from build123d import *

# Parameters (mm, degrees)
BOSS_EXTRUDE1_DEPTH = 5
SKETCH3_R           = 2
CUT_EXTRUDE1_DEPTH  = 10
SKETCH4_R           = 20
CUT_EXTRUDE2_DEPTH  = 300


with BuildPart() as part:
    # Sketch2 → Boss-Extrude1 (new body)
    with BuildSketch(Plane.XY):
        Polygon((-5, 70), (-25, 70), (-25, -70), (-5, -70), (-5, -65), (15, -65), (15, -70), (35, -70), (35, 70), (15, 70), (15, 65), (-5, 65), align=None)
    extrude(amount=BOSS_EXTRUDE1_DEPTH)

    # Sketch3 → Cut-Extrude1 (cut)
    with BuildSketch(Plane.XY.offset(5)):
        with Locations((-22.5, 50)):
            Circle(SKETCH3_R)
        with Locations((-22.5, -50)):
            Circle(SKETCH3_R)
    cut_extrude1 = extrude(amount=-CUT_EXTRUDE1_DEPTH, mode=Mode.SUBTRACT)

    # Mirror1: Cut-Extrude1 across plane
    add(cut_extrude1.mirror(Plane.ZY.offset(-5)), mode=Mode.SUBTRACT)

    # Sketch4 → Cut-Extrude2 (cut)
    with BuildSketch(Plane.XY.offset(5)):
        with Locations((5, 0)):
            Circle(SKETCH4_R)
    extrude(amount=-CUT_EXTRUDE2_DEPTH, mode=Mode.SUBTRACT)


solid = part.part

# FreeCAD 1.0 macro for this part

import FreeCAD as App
import Part
import Sketcher
from FreeCAD import Vector
Q = App.Units.Quantity

doc = App.newDocument("Part")
body = doc.addObject("PartDesign::Body", "Body")

# Sketch on XY plane
sketch1 = body.newObject("Sketcher::SketchObject", "Sketch")
sketch1.AttachmentSupport = (doc.getObject("XY_Plane"), [""])
sketch1.MapMode = "FlatFace"
sketch1.addGeometry([
    Part.LineSegment(Vector(-5, 70, 0), Vector(-25, 70, 0)),  # 0
    Part.LineSegment(Vector(-25, 70, 0), Vector(-25, -70, 0)),  # 1
    Part.LineSegment(Vector(-25, -70, 0), Vector(-5, -70, 0)),  # 2
    Part.LineSegment(Vector(-5, -70, 0), Vector(-5, -65, 0)),  # 3
    Part.LineSegment(Vector(-5, -65, 0), Vector(15, -65, 0)),  # 4
    Part.LineSegment(Vector(15, -65, 0), Vector(15, -70, 0)),  # 5
    Part.LineSegment(Vector(15, -70, 0), Vector(35, -70, 0)),  # 6
    Part.LineSegment(Vector(35, -70, 0), Vector(35, 70, 0)),  # 7
    Part.LineSegment(Vector(35, 70, 0), Vector(15, 70, 0)),  # 8
    Part.LineSegment(Vector(15, 70, 0), Vector(15, 65, 0)),  # 9
    Part.LineSegment(Vector(15, 65, 0), Vector(-5, 65, 0)),  # 10
    Part.LineSegment(Vector(-5, 65, 0), Vector(-5, 70, 0)),  # 11
], False)
sketch1.addConstraint([
    Sketcher.Constraint("Coincident", 0, 2, 1, 1),
    Sketcher.Constraint("Coincident", 1, 2, 2, 1),
    Sketcher.Constraint("Coincident", 2, 2, 3, 1),
    Sketcher.Constraint("Coincident", 3, 2, 4, 1),
    Sketcher.Constraint("Coincident", 4, 2, 5, 1),
    Sketcher.Constraint("Coincident", 5, 2, 6, 1),
    Sketcher.Constraint("Coincident", 6, 2, 7, 1),
    Sketcher.Constraint("Coincident", 7, 2, 8, 1),
    Sketcher.Constraint("Coincident", 8, 2, 9, 1),
    Sketcher.Constraint("Coincident", 9, 2, 10, 1),
    Sketcher.Constraint("Coincident", 10, 2, 11, 1),
    Sketcher.Constraint("Coincident", 11, 2, 0, 1),
    Sketcher.Constraint("Horizontal", 0),
    Sketcher.Constraint("Vertical", 1),
    Sketcher.Constraint("Horizontal", 2),
    Sketcher.Constraint("Vertical", 3),
    Sketcher.Constraint("Horizontal", 4),
    Sketcher.Constraint("Vertical", 5),
    Sketcher.Constraint("Horizontal", 6),
    Sketcher.Constraint("Vertical", 7),
    Sketcher.Constraint("Horizontal", 8),
    Sketcher.Constraint("Vertical", 9),
    Sketcher.Constraint("Horizontal", 10),
    Sketcher.Constraint("Vertical", 11),
    Sketcher.Constraint("Symmetric", 5, 2, 8, 2, -1),
    Sketcher.Constraint("Symmetric", 3, 2, 10, 2, -1),
    Sketcher.Constraint("Horizontal", 2, 2, 5, 2),
    Sketcher.Constraint("Horizontal", 0, 2, 7, 2),
    Sketcher.Constraint("Equal", 2, 4),
    Sketcher.Constraint("Equal", 4, 6),
    Sketcher.Constraint("DistanceX", 0, 2, 0, 1, Q("20 mm")),
    Sketcher.Constraint("DistanceY", 1, 2, 1, 1, Q("140 mm")),
    Sketcher.Constraint("DistanceY", 3, 1, 3, 2, Q("5 mm")),
    Sketcher.Constraint("DistanceX", 0, 2, -1, 1, Q("25 mm")),
])
pad1 = body.newObject("PartDesign::Pad", "Pad")
pad1.Profile = sketch1
pad1.Length = 5

# Sketch on XY plane
sketch2 = body.newObject("Sketcher::SketchObject", "Sketch001")
sketch2.AttachmentSupport = (doc.getObject("XY_Plane"), [""])
sketch2.MapMode = "FlatFace"
sketch2.AttachmentOffset = App.Placement(Vector(0, 0, 5), App.Rotation())
sketch2.addGeometry([
    Part.Circle(Vector(-22.5, 50, 0), Vector(0, 0, 1), 2),
    Part.Circle(Vector(-22.5, -50, 0), Vector(0, 0, 1), 2),
], False)
sketch2.addConstraint([
    Sketcher.Constraint("Equal", 0, 1),
    Sketcher.Constraint("Symmetric", 0, 3, 1, 3, -1),
    Sketcher.Constraint("Diameter", 0, Q("4 mm")),
    Sketcher.Constraint("DistanceY", -1, 1, 0, 3, Q("50 mm")),
    Sketcher.Constraint("DistanceX", 0, 3, -1, 1, Q("22.5 mm")),
])
pocket1 = body.newObject("PartDesign::Pocket", "Pocket")
pocket1.Profile = sketch2
pocket1.Length = 10
doc.recompute()

datumplane = body.newObject("PartDesign::Plane", "DatumPlane")
datumplane.AttachmentSupport = (doc.getObject("YZ_Plane"), [""])
datumplane.MapMode = "FlatFace"
datumplane.AttachmentOffset = App.Placement(Vector(0, 0, 5), App.Rotation())
mirrored = body.newObject("PartDesign::Mirrored", "Mirrored")
mirrored.Originals = [pocket1]
mirrored.MirrorPlane = (datumplane, [""])
body.Tip = mirrored

# Sketch on XY plane
sketch3 = body.newObject("Sketcher::SketchObject", "Sketch002")
sketch3.AttachmentSupport = (doc.getObject("XY_Plane"), [""])
sketch3.MapMode = "FlatFace"
sketch3.AttachmentOffset = App.Placement(Vector(0, 0, 5), App.Rotation())
sketch3.addGeometry(Part.Circle(Vector(5, 0, 0), Vector(0, 0, 1), 20), False)
sketch3.addConstraint([
    Sketcher.Constraint("PointOnObject", 0, 3, -1),
    Sketcher.Constraint("Diameter", 0, Q("40 mm")),
    Sketcher.Constraint("DistanceX", -1, 1, 0, 3, Q("5 mm")),
])
pocket2 = body.newObject("PartDesign::Pocket", "Pocket001")
pocket2.Profile = sketch3
pocket2.Length = 300

doc.recompute()
